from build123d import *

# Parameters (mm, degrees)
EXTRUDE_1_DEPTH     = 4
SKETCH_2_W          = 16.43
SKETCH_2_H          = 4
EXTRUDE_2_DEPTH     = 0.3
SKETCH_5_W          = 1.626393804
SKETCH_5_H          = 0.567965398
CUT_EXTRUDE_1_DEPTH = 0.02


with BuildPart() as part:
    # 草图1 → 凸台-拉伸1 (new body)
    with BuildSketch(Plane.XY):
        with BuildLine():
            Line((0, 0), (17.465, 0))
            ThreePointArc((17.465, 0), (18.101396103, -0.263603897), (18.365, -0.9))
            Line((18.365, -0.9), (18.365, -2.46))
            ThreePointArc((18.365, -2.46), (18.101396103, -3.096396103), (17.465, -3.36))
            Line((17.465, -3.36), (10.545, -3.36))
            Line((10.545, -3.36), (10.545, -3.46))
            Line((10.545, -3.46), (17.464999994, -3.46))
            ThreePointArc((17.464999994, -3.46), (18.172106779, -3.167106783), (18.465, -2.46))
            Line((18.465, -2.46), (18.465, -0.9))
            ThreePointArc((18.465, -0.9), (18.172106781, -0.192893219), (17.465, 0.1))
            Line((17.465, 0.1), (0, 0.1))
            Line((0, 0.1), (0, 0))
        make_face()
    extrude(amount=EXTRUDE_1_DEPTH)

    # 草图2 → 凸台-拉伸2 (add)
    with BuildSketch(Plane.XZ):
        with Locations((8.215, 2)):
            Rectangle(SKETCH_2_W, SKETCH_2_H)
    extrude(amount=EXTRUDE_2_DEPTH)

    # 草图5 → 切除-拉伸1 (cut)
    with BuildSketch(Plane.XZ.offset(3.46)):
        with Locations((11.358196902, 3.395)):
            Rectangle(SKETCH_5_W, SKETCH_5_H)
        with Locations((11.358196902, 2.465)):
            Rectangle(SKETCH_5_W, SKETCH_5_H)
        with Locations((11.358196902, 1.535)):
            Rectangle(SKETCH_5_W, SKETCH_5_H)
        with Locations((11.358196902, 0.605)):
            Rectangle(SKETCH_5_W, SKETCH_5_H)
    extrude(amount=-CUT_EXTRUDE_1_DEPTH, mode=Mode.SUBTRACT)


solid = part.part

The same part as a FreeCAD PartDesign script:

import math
import FreeCAD as App
import Part
import Sketcher

V = App.Vector


def add_polygon(sketch, points):
    """Adds a closed chain of lines whose ends are joined by coincident constraints."""
    first, n = sketch.GeometryCount, len(points)
    for a, b in zip(points, points[1:] + points[:1]):
        sketch.addGeometry(Part.LineSegment(App.Vector(*a, 0), App.Vector(*b, 0)), False)
    for i in range(n):
        sketch.addConstraint(Sketcher.Constraint("Coincident", first + i, 2, first + (i + 1) % n, 1))

doc = App.newDocument("Part")
body = doc.addObject("PartDesign::Body", "Body")

# Sketch on XY plane
sketch1 = body.newObject("Sketcher::SketchObject", "Sketch")
sketch1.AttachmentSupport = (doc.getObject("XY_Plane"), [""])
sketch1.MapMode = "FlatFace"
sketch1.addGeometry(Part.LineSegment(V(0, 0, 0), V(17.46, 0, 0)), False)
sketch1.addGeometry(Part.ArcOfCircle(Part.Circle(V(17.46, -0.9, 0), V(0, 0, 1), 0.9), math.radians(0), math.radians(90)), False)
sketch1.addGeometry(Part.LineSegment(V(18.36, -0.9, 0), V(18.36, -2.46, 0)), False)
sketch1.addGeometry(Part.ArcOfCircle(Part.Circle(V(17.46, -2.46, 0), V(0, 0, 1), 0.9), math.radians(-90), math.radians(0)), False)
sketch1.addGeometry(Part.LineSegment(V(17.46, -3.36, 0), V(10.54, -3.36, 0)), False)
sketch1.addGeometry(Part.LineSegment(V(10.54, -3.36, 0), V(10.54, -3.46, 0)), False)
sketch1.addGeometry(Part.LineSegment(V(10.54, -3.46, 0), V(17.46, -3.46, 0)), False)
sketch1.addGeometry(Part.ArcOfCircle(Part.Circle(V(17.46, -2.46, 0), V(0, 0, 1), 1), math.radians(-90), math.radians(0)), False)
sketch1.addGeometry(Part.LineSegment(V(18.46, -2.46, 0), V(18.46, -0.9, 0)), False)
sketch1.addGeometry(Part.ArcOfCircle(Part.Circle(V(17.46, -0.9, 0), V(0, 0, 1), 1), math.radians(0), math.radians(90)), False)
sketch1.addGeometry(Part.LineSegment(V(17.46, 0.1, 0), V(0, 0.1, 0)), False)
sketch1.addGeometry(Part.LineSegment(V(0, 0.1, 0), V(0, 0, 0)), False)
sketch1.addConstraint(Sketcher.Constraint("Tangent", 0, 2, 1, 2))
sketch1.addConstraint(Sketcher.Constraint("Tangent", 1, 1, 2, 1))
sketch1.addConstraint(Sketcher.Constraint("Tangent", 2, 2, 3, 2))
sketch1.addConstraint(Sketcher.Constraint("Tangent", 3, 1, 4, 1))
sketch1.addConstraint(Sketcher.Constraint("Coincident", 4, 2, 5, 1))
sketch1.addConstraint(Sketcher.Constraint("Coincident", 5, 2, 6, 1))
sketch1.addConstraint(Sketcher.Constraint("Tangent", 6, 2, 7, 1))
sketch1.addConstraint(Sketcher.Constraint("Tangent", 7, 2, 8, 1))
sketch1.addConstraint(Sketcher.Constraint("Tangent", 8, 2, 9, 1))
sketch1.addConstraint(Sketcher.Constraint("Tangent", 9, 2, 10, 1))
sketch1.addConstraint(Sketcher.Constraint("Coincident", 10, 2, 11, 1))
sketch1.addConstraint(Sketcher.Constraint("Coincident", 11, 2, 0, 1))
sketch1.addConstraint(Sketcher.Constraint("Horizontal", 0))
sketch1.addConstraint(Sketcher.Constraint("Vertical", 2))
sketch1.addConstraint(Sketcher.Constraint("Horizontal", 4))
sketch1.addConstraint(Sketcher.Constraint("Vertical", 5))
sketch1.addConstraint(Sketcher.Constraint("Horizontal", 6))
sketch1.addConstraint(Sketcher.Constraint("Vertical", 8))
sketch1.addConstraint(Sketcher.Constraint("Horizontal", 10))
sketch1.addConstraint(Sketcher.Constraint("Vertical", 11))
sketch1.addConstraint(Sketcher.Constraint("Coincident", 11, 2, -1, 1))
sketch1.addConstraint(Sketcher.Constraint("Coincident", 7, 3, 3, 3))
sketch1.addConstraint(Sketcher.Constraint("Coincident", 9, 3, 1, 3))
sketch1.addConstraint(Sketcher.Constraint("Equal", 1, 3))
sketch1.addConstraint(Sketcher.Constraint("Radius", 7, 1.0))
sketch1.addConstraint(Sketcher.Constraint("Radius", 1, 0.9))
sketch1.addConstraint(Sketcher.Constraint("DistanceX", 4, 2, 4, 1, 6.92))
sketch1.addConstraint(Sketcher.Constraint("DistanceY", 2, 2, 2, 1, 1.56))
sketch1.addConstraint(Sketcher.Constraint("DistanceX", 0, 1, 0, 2, 17.465))
pad1 = body.newObject("PartDesign::Pad", "Pad")
pad1.Profile = sketch1
pad1.Length = 4

# Sketch on XZ plane
sketch2 = body.newObject("Sketcher::SketchObject", "Sketch001")
sketch2.AttachmentSupport = (doc.getObject("XZ_Plane"), [""])
sketch2.MapMode = "FlatFace"
add_polygon(sketch2, [(0, 4), (0, 0), (16.4, 0), (16.4, 4)])  # lines 0-3
sketch2.addConstraint(Sketcher.Constraint("Vertical", 0))
sketch2.addConstraint(Sketcher.Constraint("Horizontal", 1))
sketch2.addConstraint(Sketcher.Constraint("Vertical", 2))
sketch2.addConstraint(Sketcher.Constraint("Horizontal", 3))
sketch2.addConstraint(Sketcher.Constraint("Coincident", 0, 2, -1, 1))
sketch2.addConstraint(Sketcher.Constraint("DistanceY", 0, 2, 0, 1, 4.0))
sketch2.addConstraint(Sketcher.Constraint("DistanceX", 1, 1, 1, 2, 16.43))
pad2 = body.newObject("PartDesign::Pad", "Pad001")
pad2.Profile = sketch2
pad2.Length = 0.3

# Sketch on XZ plane
sketch3 = body.newObject("Sketcher::SketchObject", "Sketch002")
sketch3.AttachmentSupport = (doc.getObject("XZ_Plane"), [""])
sketch3.MapMode = "FlatFace"
sketch3.AttachmentOffset = App.Placement(V(0, 0, 3.46), App.Rotation())
add_polygon(sketch3, [(10.5, 3.7), (10.5, 3.1), (12.2, 3.1), (12.2, 3.7)])  # lines 0-3
add_polygon(sketch3, [(10.5, 2.7), (10.5, 2.2), (12.2, 2.2), (12.2, 2.7)])  # lines 4-7
add_polygon(sketch3, [(10.5, 1.8), (10.5, 1.3), (12.2, 1.3), (12.2, 1.8)])  # lines 8-11
add_polygon(sketch3, [(10.5, 0.9), (10.5, 0.3), (12.2, 0.3), (12.2, 0.9)])  # lines 12-15
sketch3.addConstraint(Sketcher.Constraint("Vertical", 0))
sketch3.addConstraint(Sketcher.Constraint("Horizontal", 1))
sketch3.addConstraint(Sketcher.Constraint("Vertical", 2))
sketch3.addConstraint(Sketcher.Constraint("Horizontal", 3))
sketch3.addConstraint(Sketcher.Constraint("Vertical", 4))
sketch3.addConstraint(Sketcher.Constraint("Horizontal", 5))
sketch3.addConstraint(Sketcher.Constraint("Vertical", 6))
sketch3.addConstraint(Sketcher.Constraint("Horizontal", 7))
sketch3.addConstraint(Sketcher.Constraint("Vertical", 8))
sketch3.addConstraint(Sketcher.Constraint("Horizontal", 9))
sketch3.addConstraint(Sketcher.Constraint("Vertical", 10))
sketch3.addConstraint(Sketcher.Constraint("Horizontal", 11))
sketch3.addConstraint(Sketcher.Constraint("Vertical", 12))
sketch3.addConstraint(Sketcher.Constraint("Horizontal", 13))
sketch3.addConstraint(Sketcher.Constraint("Vertical", 14))
sketch3.addConstraint(Sketcher.Constraint("Horizontal", 15))
sketch3.addConstraint(Sketcher.Constraint("Vertical", 3, 2, 4, 2))
sketch3.addConstraint(Sketcher.Constraint("Vertical", 2, 2, 5, 2))
sketch3.addConstraint(Sketcher.Constraint("Vertical", 7, 2, 8, 2))
sketch3.addConstraint(Sketcher.Constraint("Vertical", 6, 2, 9, 2))
sketch3.addConstraint(Sketcher.Constraint("Vertical", 11, 2, 12, 2))
sketch3.addConstraint(Sketcher.Constraint("Vertical", 10, 2, 13, 2))
sketch3.addConstraint(Sketcher.Constraint("Equal", 2, 4))
sketch3.addConstraint(Sketcher.Constraint("Equal", 6, 8))
sketch3.addConstraint(Sketcher.Constraint("Equal", 10, 12))
sketch3.addConstraint(Sketcher.Constraint("DistanceY", 4, 2, 0, 2, 0.93))
sketch3.addConstraint(Sketcher.Constraint("DistanceY", 8, 2, 4, 2, 0.93))
sketch3.addConstraint(Sketcher.Constraint("DistanceY", 12, 2, 8, 2, 0.93))
sketch3.addConstraint(Sketcher.Constraint("DistanceX", -1, 1, 0, 2, 10.545))
sketch3.addConstraint(Sketcher.Constraint("DistanceX", 1, 1, 1, 2, 1.626394))
sketch3.addConstraint(Sketcher.Constraint("DistanceY", 0, 2, 0, 1, 0.567965))
sketch3.addConstraint(Sketcher.Constraint("DistanceY", -1, 1, 0, 2, 3.111017))
pocket1 = body.newObject("PartDesign::Pocket", "Pocket")
pocket1.Profile = sketch3
pocket1.Length = 0.02

doc.recompute()
